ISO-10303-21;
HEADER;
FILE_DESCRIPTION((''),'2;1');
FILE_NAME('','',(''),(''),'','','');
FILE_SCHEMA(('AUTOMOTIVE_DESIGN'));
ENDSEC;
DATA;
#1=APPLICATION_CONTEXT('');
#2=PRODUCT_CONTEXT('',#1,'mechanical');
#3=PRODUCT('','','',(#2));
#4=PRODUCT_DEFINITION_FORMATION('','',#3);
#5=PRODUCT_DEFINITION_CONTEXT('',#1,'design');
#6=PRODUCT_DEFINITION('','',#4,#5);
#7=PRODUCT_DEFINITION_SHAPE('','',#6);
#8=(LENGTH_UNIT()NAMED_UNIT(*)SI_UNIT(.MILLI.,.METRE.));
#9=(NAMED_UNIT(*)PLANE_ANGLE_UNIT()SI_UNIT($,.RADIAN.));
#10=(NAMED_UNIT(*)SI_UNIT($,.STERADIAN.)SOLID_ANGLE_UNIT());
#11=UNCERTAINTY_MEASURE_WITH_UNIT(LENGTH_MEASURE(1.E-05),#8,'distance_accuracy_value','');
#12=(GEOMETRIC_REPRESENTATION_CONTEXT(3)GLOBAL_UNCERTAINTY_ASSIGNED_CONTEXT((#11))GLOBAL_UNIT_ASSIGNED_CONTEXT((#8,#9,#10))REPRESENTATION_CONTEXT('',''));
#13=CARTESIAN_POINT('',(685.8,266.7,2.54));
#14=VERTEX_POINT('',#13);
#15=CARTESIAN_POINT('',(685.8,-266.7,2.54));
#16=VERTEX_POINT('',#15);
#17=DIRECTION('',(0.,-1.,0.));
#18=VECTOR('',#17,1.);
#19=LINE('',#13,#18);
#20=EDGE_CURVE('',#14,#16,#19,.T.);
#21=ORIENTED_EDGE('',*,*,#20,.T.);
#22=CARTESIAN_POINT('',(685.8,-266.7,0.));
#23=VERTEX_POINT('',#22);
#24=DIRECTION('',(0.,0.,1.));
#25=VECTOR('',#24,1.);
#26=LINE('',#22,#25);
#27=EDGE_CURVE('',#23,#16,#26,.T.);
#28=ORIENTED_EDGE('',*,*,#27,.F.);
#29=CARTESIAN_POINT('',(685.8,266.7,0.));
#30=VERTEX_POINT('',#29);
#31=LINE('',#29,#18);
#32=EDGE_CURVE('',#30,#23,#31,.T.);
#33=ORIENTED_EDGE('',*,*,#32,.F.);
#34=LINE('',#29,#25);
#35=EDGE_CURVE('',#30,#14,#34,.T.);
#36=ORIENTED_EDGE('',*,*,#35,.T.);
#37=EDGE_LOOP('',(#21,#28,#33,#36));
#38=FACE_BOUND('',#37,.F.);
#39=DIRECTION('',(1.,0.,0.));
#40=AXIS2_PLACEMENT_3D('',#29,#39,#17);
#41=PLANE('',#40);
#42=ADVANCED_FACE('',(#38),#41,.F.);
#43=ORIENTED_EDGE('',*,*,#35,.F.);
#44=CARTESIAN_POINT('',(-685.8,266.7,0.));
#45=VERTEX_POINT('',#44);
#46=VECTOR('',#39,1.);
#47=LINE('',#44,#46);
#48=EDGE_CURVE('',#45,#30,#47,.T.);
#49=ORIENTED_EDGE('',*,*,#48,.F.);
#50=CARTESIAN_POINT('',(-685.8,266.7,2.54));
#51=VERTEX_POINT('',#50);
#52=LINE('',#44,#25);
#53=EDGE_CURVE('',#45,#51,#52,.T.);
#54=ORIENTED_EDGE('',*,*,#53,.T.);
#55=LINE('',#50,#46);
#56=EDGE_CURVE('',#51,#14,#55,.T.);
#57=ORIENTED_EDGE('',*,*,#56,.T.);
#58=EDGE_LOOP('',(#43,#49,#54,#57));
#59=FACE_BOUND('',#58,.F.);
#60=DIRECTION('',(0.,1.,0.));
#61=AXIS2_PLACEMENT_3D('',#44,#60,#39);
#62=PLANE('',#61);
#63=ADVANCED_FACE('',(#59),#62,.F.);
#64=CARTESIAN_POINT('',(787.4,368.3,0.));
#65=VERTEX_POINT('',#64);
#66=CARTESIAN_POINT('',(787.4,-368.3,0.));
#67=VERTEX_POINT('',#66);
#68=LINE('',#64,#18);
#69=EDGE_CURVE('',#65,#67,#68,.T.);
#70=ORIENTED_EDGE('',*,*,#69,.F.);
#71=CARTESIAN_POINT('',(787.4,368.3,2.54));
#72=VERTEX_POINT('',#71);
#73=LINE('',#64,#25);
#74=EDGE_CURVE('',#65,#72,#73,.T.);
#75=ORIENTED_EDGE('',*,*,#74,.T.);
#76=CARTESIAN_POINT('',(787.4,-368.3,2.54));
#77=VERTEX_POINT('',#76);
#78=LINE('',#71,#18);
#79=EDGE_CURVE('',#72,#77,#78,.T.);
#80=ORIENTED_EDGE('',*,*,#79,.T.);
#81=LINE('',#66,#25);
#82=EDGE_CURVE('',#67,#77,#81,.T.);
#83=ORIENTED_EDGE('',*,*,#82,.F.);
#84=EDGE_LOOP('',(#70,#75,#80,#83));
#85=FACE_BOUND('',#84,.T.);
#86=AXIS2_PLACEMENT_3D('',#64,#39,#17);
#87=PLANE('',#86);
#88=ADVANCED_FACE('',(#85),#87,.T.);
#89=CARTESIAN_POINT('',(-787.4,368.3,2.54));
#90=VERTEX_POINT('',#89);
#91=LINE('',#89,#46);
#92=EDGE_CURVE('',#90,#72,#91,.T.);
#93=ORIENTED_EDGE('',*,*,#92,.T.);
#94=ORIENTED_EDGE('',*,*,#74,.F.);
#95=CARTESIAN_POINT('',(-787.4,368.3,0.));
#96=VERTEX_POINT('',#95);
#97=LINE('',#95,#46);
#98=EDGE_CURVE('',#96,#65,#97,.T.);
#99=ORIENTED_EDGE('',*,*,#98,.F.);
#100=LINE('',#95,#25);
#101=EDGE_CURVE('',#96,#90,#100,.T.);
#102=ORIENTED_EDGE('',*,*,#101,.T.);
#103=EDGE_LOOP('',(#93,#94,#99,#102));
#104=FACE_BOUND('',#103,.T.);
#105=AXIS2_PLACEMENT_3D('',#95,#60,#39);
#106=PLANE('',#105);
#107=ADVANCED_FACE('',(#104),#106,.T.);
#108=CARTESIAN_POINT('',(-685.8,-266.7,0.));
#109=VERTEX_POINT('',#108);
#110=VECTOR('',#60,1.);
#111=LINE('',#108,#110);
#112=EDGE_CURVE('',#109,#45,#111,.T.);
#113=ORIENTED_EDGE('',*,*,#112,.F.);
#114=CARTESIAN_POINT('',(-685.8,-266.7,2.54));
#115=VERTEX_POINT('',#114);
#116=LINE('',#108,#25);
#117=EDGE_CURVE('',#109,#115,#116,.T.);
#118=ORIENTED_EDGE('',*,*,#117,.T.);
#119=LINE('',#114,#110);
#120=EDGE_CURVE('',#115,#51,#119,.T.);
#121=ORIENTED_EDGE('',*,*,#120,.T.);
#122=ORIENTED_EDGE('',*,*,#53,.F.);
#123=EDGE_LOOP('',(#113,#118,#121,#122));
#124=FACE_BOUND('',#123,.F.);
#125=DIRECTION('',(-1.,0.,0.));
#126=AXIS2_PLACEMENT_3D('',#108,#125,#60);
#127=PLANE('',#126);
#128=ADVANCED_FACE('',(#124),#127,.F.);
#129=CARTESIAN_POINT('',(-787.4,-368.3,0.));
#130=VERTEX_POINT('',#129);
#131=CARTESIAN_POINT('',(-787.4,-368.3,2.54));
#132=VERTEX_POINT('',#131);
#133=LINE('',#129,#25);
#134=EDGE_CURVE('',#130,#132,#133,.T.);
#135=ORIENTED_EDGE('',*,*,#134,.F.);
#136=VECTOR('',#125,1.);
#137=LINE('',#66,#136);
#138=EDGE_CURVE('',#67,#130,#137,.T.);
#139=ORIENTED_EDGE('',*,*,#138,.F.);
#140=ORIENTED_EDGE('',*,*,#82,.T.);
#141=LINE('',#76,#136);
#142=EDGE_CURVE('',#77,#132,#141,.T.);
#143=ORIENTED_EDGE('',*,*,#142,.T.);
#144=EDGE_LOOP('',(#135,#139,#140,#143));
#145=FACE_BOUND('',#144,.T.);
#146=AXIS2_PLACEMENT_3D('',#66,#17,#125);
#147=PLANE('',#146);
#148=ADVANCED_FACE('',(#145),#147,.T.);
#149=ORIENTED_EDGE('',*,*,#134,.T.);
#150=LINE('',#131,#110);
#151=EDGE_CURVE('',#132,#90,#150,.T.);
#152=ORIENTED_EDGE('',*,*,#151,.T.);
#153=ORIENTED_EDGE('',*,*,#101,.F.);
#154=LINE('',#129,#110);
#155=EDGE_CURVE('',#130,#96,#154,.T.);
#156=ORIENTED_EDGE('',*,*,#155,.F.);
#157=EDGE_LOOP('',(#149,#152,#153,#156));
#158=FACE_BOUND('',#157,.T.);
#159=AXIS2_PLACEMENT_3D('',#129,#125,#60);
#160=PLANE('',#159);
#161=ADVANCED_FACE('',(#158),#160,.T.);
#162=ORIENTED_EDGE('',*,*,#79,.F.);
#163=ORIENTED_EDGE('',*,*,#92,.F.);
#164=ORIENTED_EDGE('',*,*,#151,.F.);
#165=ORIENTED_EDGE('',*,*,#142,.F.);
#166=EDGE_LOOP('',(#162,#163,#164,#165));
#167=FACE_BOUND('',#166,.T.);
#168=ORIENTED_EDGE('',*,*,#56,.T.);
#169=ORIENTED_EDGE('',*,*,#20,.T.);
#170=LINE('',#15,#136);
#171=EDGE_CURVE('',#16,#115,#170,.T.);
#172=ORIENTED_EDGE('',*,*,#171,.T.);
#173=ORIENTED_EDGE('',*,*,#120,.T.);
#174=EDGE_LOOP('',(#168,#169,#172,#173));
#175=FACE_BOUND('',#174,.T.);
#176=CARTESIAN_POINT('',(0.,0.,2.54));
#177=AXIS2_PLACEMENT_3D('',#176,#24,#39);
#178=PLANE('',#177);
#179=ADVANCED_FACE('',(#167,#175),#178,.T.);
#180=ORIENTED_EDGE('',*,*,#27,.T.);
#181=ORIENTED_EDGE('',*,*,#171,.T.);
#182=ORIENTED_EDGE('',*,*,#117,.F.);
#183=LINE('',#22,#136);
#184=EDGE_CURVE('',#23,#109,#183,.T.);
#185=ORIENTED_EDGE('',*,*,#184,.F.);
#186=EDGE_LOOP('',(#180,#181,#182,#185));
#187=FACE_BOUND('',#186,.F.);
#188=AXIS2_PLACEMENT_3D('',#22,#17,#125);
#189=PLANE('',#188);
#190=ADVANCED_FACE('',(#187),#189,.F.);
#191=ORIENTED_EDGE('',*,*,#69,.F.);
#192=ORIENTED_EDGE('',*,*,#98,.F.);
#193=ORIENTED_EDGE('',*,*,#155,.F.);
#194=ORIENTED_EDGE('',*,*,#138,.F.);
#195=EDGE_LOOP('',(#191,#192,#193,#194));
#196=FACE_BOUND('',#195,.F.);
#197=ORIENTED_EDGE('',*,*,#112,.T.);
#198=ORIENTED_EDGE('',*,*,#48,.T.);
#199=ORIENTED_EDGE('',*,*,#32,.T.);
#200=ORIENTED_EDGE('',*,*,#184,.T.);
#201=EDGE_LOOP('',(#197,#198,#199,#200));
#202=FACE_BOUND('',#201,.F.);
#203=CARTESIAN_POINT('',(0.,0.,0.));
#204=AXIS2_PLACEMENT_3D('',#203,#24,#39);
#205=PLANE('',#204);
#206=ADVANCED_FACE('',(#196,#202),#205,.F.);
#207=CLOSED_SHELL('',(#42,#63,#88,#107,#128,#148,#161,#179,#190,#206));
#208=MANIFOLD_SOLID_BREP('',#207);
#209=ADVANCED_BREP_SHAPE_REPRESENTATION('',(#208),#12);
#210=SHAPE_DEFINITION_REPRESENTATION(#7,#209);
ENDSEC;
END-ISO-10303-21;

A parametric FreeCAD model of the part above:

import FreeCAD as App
import Part
import Sketcher
from FreeCAD import Vector
Q = App.Units.Quantity


def add_polygon(sketch, points):
    """Adds a closed chain of lines whose ends are joined by coincident constraints."""
    first, n = sketch.GeometryCount, len(points)
    for a, b in zip(points, points[1:] + points[:1]):
        sketch.addGeometry(Part.LineSegment(App.Vector(*a, 0), App.Vector(*b, 0)), False)
    for i in range(n):
        sketch.addConstraint(Sketcher.Constraint("Coincident", first + i, 2, first + (i + 1) % n, 1))

doc = App.newDocument("Part")
body = doc.addObject("PartDesign::Body", "Body")

sketch1 = body.newObject("Sketcher::SketchObject", "Sketch")
sketch1.AttachmentSupport = (doc.getObject("XY_Plane"), [""])
sketch1.MapMode = "FlatFace"
add_polygon(sketch1, [(787, 368), (-787, 368), (-787, -368), (787, -368)])
add_polygon(sketch1, [(-686, -267), (-686, 267), (686, 267), (686, -267)])
sketch1.addConstraint([
    Sketcher.Constraint("Horizontal", 0),
    Sketcher.Constraint("Vertical", 1),
    Sketcher.Constraint("Horizontal", 2),
    Sketcher.Constraint("Vertical", 3),
    Sketcher.Constraint("Vertical", 4),
    Sketcher.Constraint("Horizontal", 5),
    Sketcher.Constraint("Vertical", 6),
    Sketcher.Constraint("Horizontal", 7),
    Sketcher.Constraint("Symmetric", 0, 2, 2, 2, -1, 1),
    Sketcher.Constraint("Symmetric", 4, 2, 6, 2, -1, 1),
    Sketcher.Constraint("DistanceX", 0, 2, 4, 2, Q("4 in")),
    Sketcher.Constraint("DistanceY", 4, 2, 0, 2, Q("4 in")),
    Sketcher.Constraint("DistanceX", 0, 2, 0, 1, Q("62 in")),
    Sketcher.Constraint("DistanceY", 1, 2, 1, 1, Q("29 in")),
])
pad1 = body.newObject("PartDesign::Pad", "Pad")
pad1.Profile = sketch1
pad1.Length = Q("0.1 in")

doc.recompute()
